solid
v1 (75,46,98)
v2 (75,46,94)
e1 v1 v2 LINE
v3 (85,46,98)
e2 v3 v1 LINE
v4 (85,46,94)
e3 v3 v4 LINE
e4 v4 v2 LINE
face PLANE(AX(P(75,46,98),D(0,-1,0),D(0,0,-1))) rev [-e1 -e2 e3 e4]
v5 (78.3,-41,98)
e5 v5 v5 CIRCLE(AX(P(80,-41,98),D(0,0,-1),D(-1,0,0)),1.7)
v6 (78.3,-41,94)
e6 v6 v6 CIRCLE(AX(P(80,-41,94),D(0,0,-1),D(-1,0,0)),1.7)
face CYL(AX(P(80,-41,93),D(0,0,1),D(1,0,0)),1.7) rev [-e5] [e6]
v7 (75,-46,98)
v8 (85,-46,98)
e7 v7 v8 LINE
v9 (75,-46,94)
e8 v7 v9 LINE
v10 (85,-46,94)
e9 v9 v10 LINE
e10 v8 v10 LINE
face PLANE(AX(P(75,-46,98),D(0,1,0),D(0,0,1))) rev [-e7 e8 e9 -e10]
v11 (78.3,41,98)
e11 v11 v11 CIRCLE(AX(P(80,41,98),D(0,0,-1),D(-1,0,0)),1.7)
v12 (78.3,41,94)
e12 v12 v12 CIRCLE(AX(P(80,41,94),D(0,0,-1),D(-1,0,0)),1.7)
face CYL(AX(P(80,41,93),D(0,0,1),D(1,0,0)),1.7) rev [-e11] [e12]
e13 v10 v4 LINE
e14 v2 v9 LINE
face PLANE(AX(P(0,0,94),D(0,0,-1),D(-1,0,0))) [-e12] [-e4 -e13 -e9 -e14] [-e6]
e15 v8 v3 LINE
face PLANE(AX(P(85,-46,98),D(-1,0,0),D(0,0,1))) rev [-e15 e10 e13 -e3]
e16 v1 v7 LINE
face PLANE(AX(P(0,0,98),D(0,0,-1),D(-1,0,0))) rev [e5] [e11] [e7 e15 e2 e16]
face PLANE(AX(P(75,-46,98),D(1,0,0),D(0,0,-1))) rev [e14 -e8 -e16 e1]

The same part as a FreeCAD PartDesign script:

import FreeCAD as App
import Part
import Sketcher
from FreeCAD import Vector
Q = App.Units.Quantity


def add_polygon(sketch, points):
    """Adds a closed chain of lines whose ends are joined by coincident constraints."""
    first, n = sketch.GeometryCount, len(points)
    for a, b in zip(points, points[1:] + points[:1]):
        sketch.addGeometry(Part.LineSegment(App.Vector(*a, 0), App.Vector(*b, 0)), False)
    for i in range(n):
        sketch.addConstraint(Sketcher.Constraint("Coincident", first + i, 2, first + (i + 1) % n, 1))

doc = App.newDocument("Part")
body = doc.addObject("PartDesign::Body", "Body")

# Sketch on XY plane
sketch1 = body.newObject("Sketcher::SketchObject", "Sketch")
sketch1.AttachmentSupport = (doc.getObject("XY_Plane"), [""])
sketch1.MapMode = "FlatFace"
sketch1.AttachmentOffset = App.Placement(Vector(0, 0, 94), App.Rotation())
add_polygon(sketch1, [(75, 46), (75, -46), (85, -46), (85, 46)])  # lines 0-3
sketch1.addConstraint(Sketcher.Constraint("Vertical", 0))
sketch1.addConstraint(Sketcher.Constraint("Horizontal", 1))
sketch1.addConstraint(Sketcher.Constraint("Vertical", 2))
sketch1.addConstraint(Sketcher.Constraint("Horizontal", 3))
sketch1.addConstraint(Sketcher.Constraint("DistanceX", 1, 1, 1, 2, Q("10 mm")))
sketch1.addConstraint(Sketcher.Constraint("DistanceY", 0, 2, 0, 1, Q("92 mm")))
sketch1.addConstraint(Sketcher.Constraint("DistanceX", -1, 1, 0, 2, Q("75 mm")))
sketch1.addConstraint(Sketcher.Constraint("DistanceY", 0, 2, -1, 1, Q("46 mm")))
pad1 = body.newObject("PartDesign::Pad", "Pad")
pad1.Profile = sketch1
pad1.Length = 4

# Sketch on XY plane
sketch2 = body.newObject("Sketcher::SketchObject", "Sketch001")
sketch2.AttachmentSupport = (doc.getObject("XY_Plane"), [""])
sketch2.MapMode = "FlatFace"
sketch2.AttachmentOffset = App.Placement(Vector(0, 0, 99), App.Rotation())
sketch2.addGeometry(Part.Circle(Vector(80, -41, 0), Vector(0, 0, 1), 1.7), False)
sketch2.addGeometry(Part.Circle(Vector(80, 41, 0), Vector(0, 0, 1), 1.7), False)
sketch2.addConstraint(Sketcher.Constraint("Equal", 0, 1))
sketch2.addConstraint(Sketcher.Constraint("Symmetric", 0, 3, 1, 3, -1))
sketch2.addConstraint(Sketcher.Constraint("Diameter", 0, Q("3.4 mm")))
sketch2.addConstraint(Sketcher.Constraint("DistanceX", -1, 1, 0, 3, Q("80 mm")))
sketch2.addConstraint(Sketcher.Constraint("DistanceY", 0, 3, -1, 1, Q("41 mm")))
pocket1 = body.newObject("PartDesign::Pocket", "Pocket")
pocket1.Profile = sketch2
pocket1.Length = 6

doc.recompute()
